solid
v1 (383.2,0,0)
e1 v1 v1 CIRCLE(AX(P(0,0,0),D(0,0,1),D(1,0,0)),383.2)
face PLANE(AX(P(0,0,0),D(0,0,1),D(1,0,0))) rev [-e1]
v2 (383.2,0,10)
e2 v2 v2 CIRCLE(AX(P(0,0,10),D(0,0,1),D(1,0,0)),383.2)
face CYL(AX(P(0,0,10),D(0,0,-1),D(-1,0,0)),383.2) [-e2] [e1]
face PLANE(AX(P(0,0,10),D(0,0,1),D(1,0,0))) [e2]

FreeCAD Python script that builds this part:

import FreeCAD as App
import Part
import Sketcher

V = App.Vector
Q = App.Units.Quantity

doc = App.newDocument("Part")
body = doc.addObject("PartDesign::Body", "Body")

sketch1 = doc.addObject("Sketcher::SketchObject", "Sketch")
body.addObject(sketch1)
sketch1.AttachmentSupport = (doc.XY_Plane, [""])
sketch1.MapMode = "FlatFace"
sketch1.addGeometry(Part.Circle(V(0, 0, 0), V(0, 0, 1), 383), False)
sketch1.addConstraint([
    Sketcher.Constraint("Coincident", 0, 3, -1, 1),
    Sketcher.Constraint("Diameter", 0, Q("766.4 mm")),
])
pad1 = doc.addObject("PartDesign::Pad", "Pad")
body.addObject(pad1)
pad1.Profile = sketch1
pad1.Length = 10

doc.recompute()
